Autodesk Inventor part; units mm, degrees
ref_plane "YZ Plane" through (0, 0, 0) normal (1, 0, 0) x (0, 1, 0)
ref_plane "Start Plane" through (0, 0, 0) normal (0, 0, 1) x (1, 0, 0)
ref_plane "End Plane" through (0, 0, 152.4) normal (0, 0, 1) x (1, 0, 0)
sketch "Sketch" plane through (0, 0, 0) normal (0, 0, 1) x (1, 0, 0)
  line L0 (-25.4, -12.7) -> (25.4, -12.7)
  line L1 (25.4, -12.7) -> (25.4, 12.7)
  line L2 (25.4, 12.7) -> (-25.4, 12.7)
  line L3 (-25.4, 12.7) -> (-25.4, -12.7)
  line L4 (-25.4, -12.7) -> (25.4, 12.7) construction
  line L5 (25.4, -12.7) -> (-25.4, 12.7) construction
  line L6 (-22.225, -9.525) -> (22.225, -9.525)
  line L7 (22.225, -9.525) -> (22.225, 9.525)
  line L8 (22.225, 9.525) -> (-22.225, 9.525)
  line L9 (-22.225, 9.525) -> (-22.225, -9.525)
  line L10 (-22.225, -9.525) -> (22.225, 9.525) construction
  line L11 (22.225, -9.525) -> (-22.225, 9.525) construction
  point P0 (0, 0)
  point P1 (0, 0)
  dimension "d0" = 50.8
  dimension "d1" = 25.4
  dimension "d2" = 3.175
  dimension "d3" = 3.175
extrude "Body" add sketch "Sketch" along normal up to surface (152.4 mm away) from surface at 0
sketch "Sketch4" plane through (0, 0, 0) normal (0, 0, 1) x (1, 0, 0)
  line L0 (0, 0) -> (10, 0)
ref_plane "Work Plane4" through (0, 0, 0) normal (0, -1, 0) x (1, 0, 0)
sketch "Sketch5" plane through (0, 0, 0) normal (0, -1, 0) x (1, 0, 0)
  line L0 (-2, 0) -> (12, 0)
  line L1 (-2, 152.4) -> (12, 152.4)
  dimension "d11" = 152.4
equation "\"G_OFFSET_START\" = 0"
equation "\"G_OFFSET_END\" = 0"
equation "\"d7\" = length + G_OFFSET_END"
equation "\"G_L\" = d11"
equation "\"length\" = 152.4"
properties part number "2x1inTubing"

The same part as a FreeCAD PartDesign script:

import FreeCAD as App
import Part
import Sketcher
Q = App.Units.Quantity

doc = App.newDocument("Part")
body = doc.addObject("PartDesign::Body", "Body")

# Sketch on XY plane
sketch1 = doc.addObject("Sketcher::SketchObject", "Sketch")
body.addObject(sketch1)
sketch1.AttachmentSupport = (doc.XY_Plane, [""])
sketch1.MapMode = "FlatFace"
sketch1.addGeometry(Part.LineSegment(App.Vector(-25.4, 12.7, 0), App.Vector(-25.4, -12.7, 0)), False)
sketch1.addGeometry(Part.LineSegment(App.Vector(-25.4, -12.7, 0), App.Vector(25.4, -12.7, 0)), False)
sketch1.addGeometry(Part.LineSegment(App.Vector(25.4, -12.7, 0), App.Vector(25.4, 12.7, 0)), False)
sketch1.addGeometry(Part.LineSegment(App.Vector(25.4, 12.7, 0), App.Vector(-25.4, 12.7, 0)), False)
sketch1.addGeometry(Part.LineSegment(App.Vector(22.225, -9.525, 0), App.Vector(-22.225, -9.525, 0)), False)
sketch1.addGeometry(Part.LineSegment(App.Vector(-22.225, -9.525, 0), App.Vector(-22.225, 9.525, 0)), False)
sketch1.addGeometry(Part.LineSegment(App.Vector(-22.225, 9.525, 0), App.Vector(22.225, 9.525, 0)), False)
sketch1.addGeometry(Part.LineSegment(App.Vector(22.225, 9.525, 0), App.Vector(22.225, -9.525, 0)), False)
sketch1.addConstraint(Sketcher.Constraint("Coincident", 0, 2, 1, 1))
sketch1.addConstraint(Sketcher.Constraint("Coincident", 1, 2, 2, 1))
sketch1.addConstraint(Sketcher.Constraint("Coincident", 2, 2, 3, 1))
sketch1.addConstraint(Sketcher.Constraint("Coincident", 3, 2, 0, 1))
sketch1.addConstraint(Sketcher.Constraint("Coincident", 4, 2, 5, 1))
sketch1.addConstraint(Sketcher.Constraint("Coincident", 5, 2, 6, 1))
sketch1.addConstraint(Sketcher.Constraint("Coincident", 6, 2, 7, 1))
sketch1.addConstraint(Sketcher.Constraint("Coincident", 7, 2, 4, 1))
sketch1.addConstraint(Sketcher.Constraint("Vertical", 0))
sketch1.addConstraint(Sketcher.Constraint("Horizontal", 1))
sketch1.addConstraint(Sketcher.Constraint("Vertical", 2))
sketch1.addConstraint(Sketcher.Constraint("Horizontal", 3))
sketch1.addConstraint(Sketcher.Constraint("Horizontal", 4))
sketch1.addConstraint(Sketcher.Constraint("Vertical", 5))
sketch1.addConstraint(Sketcher.Constraint("Horizontal", 6))
sketch1.addConstraint(Sketcher.Constraint("Vertical", 7))
sketch1.addConstraint(Sketcher.Constraint("Symmetric", 0, 2, 2, 2, -1, 1))
sketch1.addConstraint(Sketcher.Constraint("Symmetric", 4, 2, 6, 2, -1, 1))
sketch1.addConstraint(Sketcher.Constraint("DistanceX", 1, 1, 1, 2, Q("2 in")))
sketch1.addConstraint(Sketcher.Constraint("DistanceY", 0, 2, 0, 1, Q("1 in")))
sketch1.addConstraint(Sketcher.Constraint("DistanceX", 0, 2, 4, 2, Q("0.125 in")))
sketch1.addConstraint(Sketcher.Constraint("DistanceY", 0, 2, 4, 2, Q("0.125 in")))
pad1 = doc.addObject("PartDesign::Pad", "Pad")
body.addObject(pad1)
pad1.Profile = sketch1
pad1.Length = Q("6 in")

doc.recompute()
